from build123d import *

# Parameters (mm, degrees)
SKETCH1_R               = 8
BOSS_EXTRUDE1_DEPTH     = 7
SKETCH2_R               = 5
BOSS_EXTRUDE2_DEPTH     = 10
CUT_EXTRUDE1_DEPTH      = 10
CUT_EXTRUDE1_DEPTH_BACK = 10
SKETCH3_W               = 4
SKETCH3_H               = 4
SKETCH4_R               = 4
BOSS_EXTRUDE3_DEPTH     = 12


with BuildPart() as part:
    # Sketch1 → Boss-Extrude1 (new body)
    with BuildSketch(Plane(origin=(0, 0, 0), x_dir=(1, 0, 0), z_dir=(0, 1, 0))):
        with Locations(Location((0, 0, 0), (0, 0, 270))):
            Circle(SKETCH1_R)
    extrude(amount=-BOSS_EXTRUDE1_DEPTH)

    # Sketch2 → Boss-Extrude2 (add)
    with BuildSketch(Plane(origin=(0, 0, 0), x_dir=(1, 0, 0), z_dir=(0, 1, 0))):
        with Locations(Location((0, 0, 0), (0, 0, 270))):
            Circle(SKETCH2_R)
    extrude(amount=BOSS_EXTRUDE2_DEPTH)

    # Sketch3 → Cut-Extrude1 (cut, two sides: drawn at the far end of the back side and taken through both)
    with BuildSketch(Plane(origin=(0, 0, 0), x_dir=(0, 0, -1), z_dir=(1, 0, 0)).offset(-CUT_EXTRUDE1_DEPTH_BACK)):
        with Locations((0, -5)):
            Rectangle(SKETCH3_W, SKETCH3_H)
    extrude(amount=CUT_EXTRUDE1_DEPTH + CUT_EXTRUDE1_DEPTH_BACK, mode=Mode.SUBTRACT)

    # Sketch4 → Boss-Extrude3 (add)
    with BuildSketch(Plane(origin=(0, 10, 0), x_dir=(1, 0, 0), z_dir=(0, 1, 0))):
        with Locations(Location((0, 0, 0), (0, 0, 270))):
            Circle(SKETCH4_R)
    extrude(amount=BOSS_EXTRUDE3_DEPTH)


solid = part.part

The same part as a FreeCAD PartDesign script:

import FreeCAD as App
import Part
import Sketcher

V = App.Vector

doc = App.newDocument("Part")
body = doc.addObject("PartDesign::Body", "Body")

# Sketch on XZ plane
sketch1 = body.newObject("Sketcher::SketchObject", "Sketch")
sketch1.AttachmentSupport = (doc.getObject("XZ_Plane"), [""])
sketch1.MapMode = "FlatFace"
sketch1.addGeometry(Part.Circle(V(0, 0, 0), V(0, 0, 1), 8), False)
sketch1.addConstraint([
    Sketcher.Constraint("Coincident", 0, 3, -1, 1),
    Sketcher.Constraint("Diameter", 0, 16.0),
])
pad1 = body.newObject("PartDesign::Pad", "Pad")
pad1.Profile = sketch1
pad1.Length = 7

# Sketch on XZ plane
sketch2 = body.newObject("Sketcher::SketchObject", "Sketch001")
sketch2.AttachmentSupport = (doc.getObject("XZ_Plane"), [""])
sketch2.MapMode = "FlatFace"
sketch2.addGeometry(Part.Circle(V(0, 0, 0), V(0, 0, 1), 5), False)
sketch2.addConstraint([
    Sketcher.Constraint("Coincident", 0, 3, -1, 1),
    Sketcher.Constraint("Diameter", 0, 10.0),
])
pad2 = body.newObject("PartDesign::Pad", "Pad001")
pad2.Profile = sketch2
pad2.Length = 10
pad2.Reversed = True

# Sketch on YZ plane
sketch3 = body.newObject("Sketcher::SketchObject", "Sketch002")
sketch3.AttachmentSupport = (doc.getObject("YZ_Plane"), [""])
sketch3.MapMode = "FlatFace"
sketch3.addGeometry([
    Part.LineSegment(V(-3, 2, 0), V(-7, 2, 0)),
    Part.LineSegment(V(-7, 2, 0), V(-7, -2, 0)),
    Part.LineSegment(V(-7, -2, 0), V(-3, -2, 0)),
    Part.LineSegment(V(-3, -2, 0), V(-3, 2, 0)),
], False)
sketch3.addConstraint([
    Sketcher.Constraint("Coincident", 0, 2, 1, 1),
    Sketcher.Constraint("Coincident", 1, 2, 2, 1),
    Sketcher.Constraint("Coincident", 2, 2, 3, 1),
    Sketcher.Constraint("Coincident", 3, 2, 0, 1),
    Sketcher.Constraint("Horizontal", 0),
    Sketcher.Constraint("Vertical", 1),
    Sketcher.Constraint("Horizontal", 2),
    Sketcher.Constraint("Vertical", 3),
    Sketcher.Constraint("Equal", 2, 1),
    Sketcher.Constraint("DistanceX", 0, 2, 0, 1, 4.0),
    Sketcher.Constraint("DistanceX", 0, 2, -1, 1, 7.0),
    Sketcher.Constraint("DistanceY", -1, 1, 0, 2, 2.0),
])
pocket1 = body.newObject("PartDesign::Pocket", "Pocket")
pocket1.Profile = sketch3
pocket1.Type = "ThroughAll"
pocket1.Midplane = True

# Sketch on XZ plane
sketch4 = body.newObject("Sketcher::SketchObject", "Sketch003")
sketch4.AttachmentSupport = (doc.getObject("XZ_Plane"), [""])
sketch4.MapMode = "FlatFace"
sketch4.AttachmentOffset = App.Placement(V(0, 0, -10), App.Rotation())
sketch4.addGeometry(Part.Circle(V(0, 0, 0), V(0, 0, 1), 4), False)
sketch4.addConstraint([
    Sketcher.Constraint("Coincident", 0, 3, -1, 1),
    Sketcher.Constraint("Diameter", 0, 8.0),
])
pad3 = body.newObject("PartDesign::Pad", "Pad002")
pad3.Profile = sketch4
pad3.Length = 12
pad3.Reversed = True

doc.recompute()
